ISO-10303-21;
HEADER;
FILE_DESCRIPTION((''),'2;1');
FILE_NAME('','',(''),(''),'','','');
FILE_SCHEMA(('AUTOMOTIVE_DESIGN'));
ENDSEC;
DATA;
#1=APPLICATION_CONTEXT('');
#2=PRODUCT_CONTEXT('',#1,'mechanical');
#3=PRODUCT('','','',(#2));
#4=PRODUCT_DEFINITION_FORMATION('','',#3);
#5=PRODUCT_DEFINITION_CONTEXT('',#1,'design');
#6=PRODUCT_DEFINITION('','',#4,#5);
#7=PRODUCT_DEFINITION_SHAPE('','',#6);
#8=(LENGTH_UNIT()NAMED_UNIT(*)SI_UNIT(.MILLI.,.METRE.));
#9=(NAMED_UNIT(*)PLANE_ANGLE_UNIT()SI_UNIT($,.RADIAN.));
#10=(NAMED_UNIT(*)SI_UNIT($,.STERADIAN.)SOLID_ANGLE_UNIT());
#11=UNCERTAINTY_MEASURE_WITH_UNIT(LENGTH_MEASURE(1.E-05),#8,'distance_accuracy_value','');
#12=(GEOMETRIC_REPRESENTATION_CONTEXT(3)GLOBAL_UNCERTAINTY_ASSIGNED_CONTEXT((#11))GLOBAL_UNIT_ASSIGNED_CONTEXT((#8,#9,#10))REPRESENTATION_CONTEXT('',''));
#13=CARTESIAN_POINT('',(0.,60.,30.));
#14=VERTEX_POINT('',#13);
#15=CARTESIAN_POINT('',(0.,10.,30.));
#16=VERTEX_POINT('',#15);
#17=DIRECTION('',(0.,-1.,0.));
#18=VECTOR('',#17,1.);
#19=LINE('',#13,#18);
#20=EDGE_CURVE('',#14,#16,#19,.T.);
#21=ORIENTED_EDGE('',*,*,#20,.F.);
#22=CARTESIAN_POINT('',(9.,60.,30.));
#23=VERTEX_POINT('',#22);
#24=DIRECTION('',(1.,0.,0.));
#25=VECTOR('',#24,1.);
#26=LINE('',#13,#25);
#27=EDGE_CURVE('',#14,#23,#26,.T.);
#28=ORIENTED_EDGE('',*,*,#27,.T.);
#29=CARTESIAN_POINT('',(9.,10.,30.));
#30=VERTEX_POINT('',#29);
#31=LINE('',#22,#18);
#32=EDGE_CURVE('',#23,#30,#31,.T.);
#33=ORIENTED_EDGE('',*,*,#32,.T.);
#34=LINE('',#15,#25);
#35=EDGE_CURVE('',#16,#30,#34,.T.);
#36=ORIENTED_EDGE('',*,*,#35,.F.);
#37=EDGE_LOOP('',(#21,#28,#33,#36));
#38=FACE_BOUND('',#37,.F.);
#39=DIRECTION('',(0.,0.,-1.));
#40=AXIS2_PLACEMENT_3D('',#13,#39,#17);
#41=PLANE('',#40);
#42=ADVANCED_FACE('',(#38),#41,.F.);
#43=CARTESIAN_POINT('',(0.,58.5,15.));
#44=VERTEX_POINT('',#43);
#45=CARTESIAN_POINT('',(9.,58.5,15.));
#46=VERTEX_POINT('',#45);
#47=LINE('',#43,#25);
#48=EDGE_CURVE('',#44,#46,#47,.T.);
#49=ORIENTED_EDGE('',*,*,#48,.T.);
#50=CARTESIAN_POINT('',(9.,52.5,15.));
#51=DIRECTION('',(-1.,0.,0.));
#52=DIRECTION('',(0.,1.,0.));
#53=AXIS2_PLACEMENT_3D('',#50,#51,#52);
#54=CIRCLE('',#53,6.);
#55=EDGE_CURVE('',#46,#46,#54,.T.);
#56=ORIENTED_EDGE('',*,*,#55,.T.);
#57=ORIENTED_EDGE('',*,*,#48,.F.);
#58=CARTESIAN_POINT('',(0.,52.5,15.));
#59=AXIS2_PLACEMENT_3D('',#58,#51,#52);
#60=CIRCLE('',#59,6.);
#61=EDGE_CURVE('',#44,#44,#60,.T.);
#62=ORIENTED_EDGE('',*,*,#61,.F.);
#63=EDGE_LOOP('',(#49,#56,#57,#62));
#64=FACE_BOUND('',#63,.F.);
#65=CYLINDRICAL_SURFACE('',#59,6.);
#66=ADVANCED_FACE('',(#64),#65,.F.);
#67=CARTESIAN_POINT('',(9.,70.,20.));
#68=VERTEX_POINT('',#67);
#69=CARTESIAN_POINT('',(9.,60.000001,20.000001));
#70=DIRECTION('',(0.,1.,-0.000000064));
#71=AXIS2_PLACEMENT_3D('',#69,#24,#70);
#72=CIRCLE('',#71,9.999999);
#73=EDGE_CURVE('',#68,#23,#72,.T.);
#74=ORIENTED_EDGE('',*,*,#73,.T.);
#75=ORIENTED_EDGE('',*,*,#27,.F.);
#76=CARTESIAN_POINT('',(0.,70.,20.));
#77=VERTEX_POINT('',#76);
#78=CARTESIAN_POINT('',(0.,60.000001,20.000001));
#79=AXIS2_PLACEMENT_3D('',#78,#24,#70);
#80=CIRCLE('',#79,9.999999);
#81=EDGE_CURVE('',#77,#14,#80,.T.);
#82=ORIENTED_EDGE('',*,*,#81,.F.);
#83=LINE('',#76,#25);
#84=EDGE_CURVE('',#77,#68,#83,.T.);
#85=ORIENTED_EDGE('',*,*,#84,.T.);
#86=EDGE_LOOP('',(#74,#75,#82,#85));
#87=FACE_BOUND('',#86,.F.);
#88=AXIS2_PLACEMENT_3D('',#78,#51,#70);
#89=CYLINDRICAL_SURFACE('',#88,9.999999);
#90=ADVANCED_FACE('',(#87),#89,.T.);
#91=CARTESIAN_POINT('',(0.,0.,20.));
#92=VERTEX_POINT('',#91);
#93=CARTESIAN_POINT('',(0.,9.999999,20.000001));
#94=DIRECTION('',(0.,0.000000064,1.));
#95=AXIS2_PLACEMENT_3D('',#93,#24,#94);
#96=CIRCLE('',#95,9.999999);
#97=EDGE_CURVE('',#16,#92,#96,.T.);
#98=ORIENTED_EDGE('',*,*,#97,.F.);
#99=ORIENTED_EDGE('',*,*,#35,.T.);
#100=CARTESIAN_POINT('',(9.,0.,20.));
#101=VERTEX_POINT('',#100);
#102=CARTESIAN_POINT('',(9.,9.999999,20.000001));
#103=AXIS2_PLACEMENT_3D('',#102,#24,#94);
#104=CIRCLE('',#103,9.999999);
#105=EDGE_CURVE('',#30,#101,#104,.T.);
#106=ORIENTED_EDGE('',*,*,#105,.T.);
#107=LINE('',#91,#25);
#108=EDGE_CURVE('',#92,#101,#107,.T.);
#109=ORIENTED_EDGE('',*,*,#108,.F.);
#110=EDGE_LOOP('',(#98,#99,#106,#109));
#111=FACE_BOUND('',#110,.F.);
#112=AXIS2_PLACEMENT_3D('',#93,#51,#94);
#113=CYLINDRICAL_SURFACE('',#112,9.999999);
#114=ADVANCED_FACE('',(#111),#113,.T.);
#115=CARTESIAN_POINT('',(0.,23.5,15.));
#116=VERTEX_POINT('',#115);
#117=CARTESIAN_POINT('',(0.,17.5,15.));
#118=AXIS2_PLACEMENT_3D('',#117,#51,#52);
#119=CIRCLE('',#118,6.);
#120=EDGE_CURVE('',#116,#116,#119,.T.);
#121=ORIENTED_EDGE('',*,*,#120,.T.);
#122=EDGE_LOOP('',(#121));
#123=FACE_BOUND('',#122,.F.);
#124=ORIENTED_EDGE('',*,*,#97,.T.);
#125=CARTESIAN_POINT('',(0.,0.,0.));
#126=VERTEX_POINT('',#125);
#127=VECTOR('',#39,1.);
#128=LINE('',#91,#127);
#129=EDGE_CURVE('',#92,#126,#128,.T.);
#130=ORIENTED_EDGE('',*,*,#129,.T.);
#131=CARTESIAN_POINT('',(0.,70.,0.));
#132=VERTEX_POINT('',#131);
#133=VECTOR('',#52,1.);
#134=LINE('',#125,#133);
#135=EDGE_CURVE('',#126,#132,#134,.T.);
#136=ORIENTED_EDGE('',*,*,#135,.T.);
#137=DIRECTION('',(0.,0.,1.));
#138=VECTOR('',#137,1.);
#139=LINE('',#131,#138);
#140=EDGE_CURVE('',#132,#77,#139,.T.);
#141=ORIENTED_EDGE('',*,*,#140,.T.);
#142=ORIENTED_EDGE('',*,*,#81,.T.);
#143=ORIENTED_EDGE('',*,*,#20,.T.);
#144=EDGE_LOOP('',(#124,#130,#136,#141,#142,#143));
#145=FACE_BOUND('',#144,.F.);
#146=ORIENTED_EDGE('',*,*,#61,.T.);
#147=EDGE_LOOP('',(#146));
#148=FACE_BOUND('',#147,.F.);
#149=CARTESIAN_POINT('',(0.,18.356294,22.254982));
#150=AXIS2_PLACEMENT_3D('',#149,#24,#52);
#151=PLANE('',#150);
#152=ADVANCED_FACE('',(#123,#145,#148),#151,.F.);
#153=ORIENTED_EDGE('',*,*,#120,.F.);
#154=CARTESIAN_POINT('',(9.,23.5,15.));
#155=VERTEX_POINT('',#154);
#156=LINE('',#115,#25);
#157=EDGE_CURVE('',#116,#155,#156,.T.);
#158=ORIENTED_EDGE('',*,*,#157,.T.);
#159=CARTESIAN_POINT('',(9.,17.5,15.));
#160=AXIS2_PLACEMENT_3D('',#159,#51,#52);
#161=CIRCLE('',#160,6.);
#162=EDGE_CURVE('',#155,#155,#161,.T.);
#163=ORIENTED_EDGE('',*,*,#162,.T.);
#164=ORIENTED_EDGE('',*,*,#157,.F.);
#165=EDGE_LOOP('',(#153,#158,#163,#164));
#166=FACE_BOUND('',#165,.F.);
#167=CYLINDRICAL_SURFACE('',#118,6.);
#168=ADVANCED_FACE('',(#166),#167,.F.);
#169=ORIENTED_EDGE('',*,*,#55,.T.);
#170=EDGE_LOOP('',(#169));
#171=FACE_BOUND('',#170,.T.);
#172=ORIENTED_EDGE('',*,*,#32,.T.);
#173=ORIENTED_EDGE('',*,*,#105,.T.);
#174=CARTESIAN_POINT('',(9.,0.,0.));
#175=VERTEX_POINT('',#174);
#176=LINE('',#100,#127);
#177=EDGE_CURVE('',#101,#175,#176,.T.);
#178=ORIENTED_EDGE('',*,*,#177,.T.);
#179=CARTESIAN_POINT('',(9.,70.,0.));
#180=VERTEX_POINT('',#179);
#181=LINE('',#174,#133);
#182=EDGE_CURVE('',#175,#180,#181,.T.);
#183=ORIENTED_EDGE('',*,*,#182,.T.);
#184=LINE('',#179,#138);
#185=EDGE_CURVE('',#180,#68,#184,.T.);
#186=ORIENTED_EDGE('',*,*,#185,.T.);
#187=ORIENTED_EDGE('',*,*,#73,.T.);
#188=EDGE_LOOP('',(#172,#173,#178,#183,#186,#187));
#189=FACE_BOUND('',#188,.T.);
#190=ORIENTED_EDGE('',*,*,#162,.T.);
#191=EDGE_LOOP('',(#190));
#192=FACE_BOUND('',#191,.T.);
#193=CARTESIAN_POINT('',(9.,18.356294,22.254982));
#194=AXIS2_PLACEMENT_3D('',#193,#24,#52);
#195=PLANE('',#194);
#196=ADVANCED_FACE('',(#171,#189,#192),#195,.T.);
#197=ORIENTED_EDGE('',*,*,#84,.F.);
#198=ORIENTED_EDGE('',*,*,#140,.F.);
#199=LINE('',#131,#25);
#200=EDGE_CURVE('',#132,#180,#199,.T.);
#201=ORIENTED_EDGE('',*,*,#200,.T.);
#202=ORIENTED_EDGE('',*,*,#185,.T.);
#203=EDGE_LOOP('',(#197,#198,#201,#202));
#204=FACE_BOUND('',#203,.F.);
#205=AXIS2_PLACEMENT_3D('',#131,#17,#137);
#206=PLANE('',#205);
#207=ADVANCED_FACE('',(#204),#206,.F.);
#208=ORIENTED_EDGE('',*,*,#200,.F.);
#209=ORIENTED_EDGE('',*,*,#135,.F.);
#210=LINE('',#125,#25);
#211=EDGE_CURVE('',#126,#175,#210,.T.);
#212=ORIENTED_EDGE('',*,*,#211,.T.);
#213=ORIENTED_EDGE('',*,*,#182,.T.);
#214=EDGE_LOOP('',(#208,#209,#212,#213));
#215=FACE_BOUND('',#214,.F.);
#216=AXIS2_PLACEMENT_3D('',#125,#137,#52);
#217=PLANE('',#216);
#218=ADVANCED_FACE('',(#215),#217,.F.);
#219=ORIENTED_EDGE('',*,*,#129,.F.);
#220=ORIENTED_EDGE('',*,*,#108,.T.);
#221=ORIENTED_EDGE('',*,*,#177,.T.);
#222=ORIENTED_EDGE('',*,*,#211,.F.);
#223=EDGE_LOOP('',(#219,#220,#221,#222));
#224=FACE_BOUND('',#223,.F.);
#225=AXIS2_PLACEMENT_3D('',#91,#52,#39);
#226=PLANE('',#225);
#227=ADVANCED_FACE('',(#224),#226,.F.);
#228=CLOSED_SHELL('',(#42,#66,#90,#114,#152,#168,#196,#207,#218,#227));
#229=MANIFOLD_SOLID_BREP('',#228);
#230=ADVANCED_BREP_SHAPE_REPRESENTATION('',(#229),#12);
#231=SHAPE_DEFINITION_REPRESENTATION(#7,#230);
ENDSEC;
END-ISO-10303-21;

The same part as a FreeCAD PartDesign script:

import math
import FreeCAD as App
import Part
import Sketcher
from FreeCAD import Vector

doc = App.newDocument("Part")
body = doc.addObject("PartDesign::Body", "Body")

# Sketch on YZ plane
sketch1 = body.newObject("Sketcher::SketchObject", "Sketch")
sketch1.AttachmentSupport = (doc.getObject("YZ_Plane"), [""])
sketch1.MapMode = "FlatFace"
sketch1.addGeometry(Part.LineSegment(Vector(0, 20, 0), Vector(0, 0, 0)), False)
sketch1.addGeometry(Part.LineSegment(Vector(0, 0, 0), Vector(70, 0, 0)), False)
sketch1.addGeometry(Part.LineSegment(Vector(70, 0, 0), Vector(70, 20, 0)), False)
sketch1.addGeometry(Part.ArcOfCircle(Part.Circle(Vector(60, 20, 0), Vector(0, 0, 1), 10), math.radians(0), math.radians(90)), False)
sketch1.addGeometry(Part.LineSegment(Vector(60, 30, 0), Vector(10, 30, 0)), False)
sketch1.addGeometry(Part.ArcOfCircle(Part.Circle(Vector(10, 20, 0), Vector(0, 0, 1), 10), math.radians(90), math.radians(180)), False)
sketch1.addGeometry(Part.Circle(Vector(52, 15, 0), Vector(0, 0, 1), 6), False)
sketch1.addGeometry(Part.Circle(Vector(18, 15, 0), Vector(0, 0, 1), 6), False)
sketch1.addConstraint(Sketcher.Constraint("Coincident", 0, 2, 1, 1))
sketch1.addConstraint(Sketcher.Constraint("Coincident", 1, 2, 2, 1))
sketch1.addConstraint(Sketcher.Constraint("Tangent", 2, 2, 3, 1))
sketch1.addConstraint(Sketcher.Constraint("Tangent", 3, 2, 4, 1))
sketch1.addConstraint(Sketcher.Constraint("Tangent", 4, 2, 5, 1))
sketch1.addConstraint(Sketcher.Constraint("Tangent", 5, 2, 0, 1))
sketch1.addConstraint(Sketcher.Constraint("Vertical", 0))
sketch1.addConstraint(Sketcher.Constraint("Horizontal", 1))
sketch1.addConstraint(Sketcher.Constraint("Vertical", 2))
sketch1.addConstraint(Sketcher.Constraint("Horizontal", 4))
sketch1.addConstraint(Sketcher.Constraint("Coincident", 0, 2, -1, 1))
sketch1.addConstraint(Sketcher.Constraint("Equal", 3, 5))
sketch1.addConstraint(Sketcher.Constraint("Equal", 6, 7))
sketch1.addConstraint(Sketcher.Constraint("Horizontal", 6, 3, 7, 3))
sketch1.addConstraint(Sketcher.Constraint("Diameter", 6, 12.0))
sketch1.addConstraint(Sketcher.Constraint("Radius", 3, 9.999999))
sketch1.addConstraint(Sketcher.Constraint("DistanceX", 1, 1, 1, 2, 70.0))
sketch1.addConstraint(Sketcher.Constraint("DistanceY", 0, 2, 0, 1, 20.0))
sketch1.addConstraint(Sketcher.Constraint("DistanceY", -1, 1, 6, 3, 15.0))
sketch1.addConstraint(Sketcher.Constraint("DistanceX", 7, 3, 6, 3, 35.0))
sketch1.addConstraint(Sketcher.Constraint("DistanceX", -1, 1, 6, 3, 52.5))
pad1 = body.newObject("PartDesign::Pad", "Pad")
pad1.Profile = sketch1
pad1.Length = 9

doc.recompute()
